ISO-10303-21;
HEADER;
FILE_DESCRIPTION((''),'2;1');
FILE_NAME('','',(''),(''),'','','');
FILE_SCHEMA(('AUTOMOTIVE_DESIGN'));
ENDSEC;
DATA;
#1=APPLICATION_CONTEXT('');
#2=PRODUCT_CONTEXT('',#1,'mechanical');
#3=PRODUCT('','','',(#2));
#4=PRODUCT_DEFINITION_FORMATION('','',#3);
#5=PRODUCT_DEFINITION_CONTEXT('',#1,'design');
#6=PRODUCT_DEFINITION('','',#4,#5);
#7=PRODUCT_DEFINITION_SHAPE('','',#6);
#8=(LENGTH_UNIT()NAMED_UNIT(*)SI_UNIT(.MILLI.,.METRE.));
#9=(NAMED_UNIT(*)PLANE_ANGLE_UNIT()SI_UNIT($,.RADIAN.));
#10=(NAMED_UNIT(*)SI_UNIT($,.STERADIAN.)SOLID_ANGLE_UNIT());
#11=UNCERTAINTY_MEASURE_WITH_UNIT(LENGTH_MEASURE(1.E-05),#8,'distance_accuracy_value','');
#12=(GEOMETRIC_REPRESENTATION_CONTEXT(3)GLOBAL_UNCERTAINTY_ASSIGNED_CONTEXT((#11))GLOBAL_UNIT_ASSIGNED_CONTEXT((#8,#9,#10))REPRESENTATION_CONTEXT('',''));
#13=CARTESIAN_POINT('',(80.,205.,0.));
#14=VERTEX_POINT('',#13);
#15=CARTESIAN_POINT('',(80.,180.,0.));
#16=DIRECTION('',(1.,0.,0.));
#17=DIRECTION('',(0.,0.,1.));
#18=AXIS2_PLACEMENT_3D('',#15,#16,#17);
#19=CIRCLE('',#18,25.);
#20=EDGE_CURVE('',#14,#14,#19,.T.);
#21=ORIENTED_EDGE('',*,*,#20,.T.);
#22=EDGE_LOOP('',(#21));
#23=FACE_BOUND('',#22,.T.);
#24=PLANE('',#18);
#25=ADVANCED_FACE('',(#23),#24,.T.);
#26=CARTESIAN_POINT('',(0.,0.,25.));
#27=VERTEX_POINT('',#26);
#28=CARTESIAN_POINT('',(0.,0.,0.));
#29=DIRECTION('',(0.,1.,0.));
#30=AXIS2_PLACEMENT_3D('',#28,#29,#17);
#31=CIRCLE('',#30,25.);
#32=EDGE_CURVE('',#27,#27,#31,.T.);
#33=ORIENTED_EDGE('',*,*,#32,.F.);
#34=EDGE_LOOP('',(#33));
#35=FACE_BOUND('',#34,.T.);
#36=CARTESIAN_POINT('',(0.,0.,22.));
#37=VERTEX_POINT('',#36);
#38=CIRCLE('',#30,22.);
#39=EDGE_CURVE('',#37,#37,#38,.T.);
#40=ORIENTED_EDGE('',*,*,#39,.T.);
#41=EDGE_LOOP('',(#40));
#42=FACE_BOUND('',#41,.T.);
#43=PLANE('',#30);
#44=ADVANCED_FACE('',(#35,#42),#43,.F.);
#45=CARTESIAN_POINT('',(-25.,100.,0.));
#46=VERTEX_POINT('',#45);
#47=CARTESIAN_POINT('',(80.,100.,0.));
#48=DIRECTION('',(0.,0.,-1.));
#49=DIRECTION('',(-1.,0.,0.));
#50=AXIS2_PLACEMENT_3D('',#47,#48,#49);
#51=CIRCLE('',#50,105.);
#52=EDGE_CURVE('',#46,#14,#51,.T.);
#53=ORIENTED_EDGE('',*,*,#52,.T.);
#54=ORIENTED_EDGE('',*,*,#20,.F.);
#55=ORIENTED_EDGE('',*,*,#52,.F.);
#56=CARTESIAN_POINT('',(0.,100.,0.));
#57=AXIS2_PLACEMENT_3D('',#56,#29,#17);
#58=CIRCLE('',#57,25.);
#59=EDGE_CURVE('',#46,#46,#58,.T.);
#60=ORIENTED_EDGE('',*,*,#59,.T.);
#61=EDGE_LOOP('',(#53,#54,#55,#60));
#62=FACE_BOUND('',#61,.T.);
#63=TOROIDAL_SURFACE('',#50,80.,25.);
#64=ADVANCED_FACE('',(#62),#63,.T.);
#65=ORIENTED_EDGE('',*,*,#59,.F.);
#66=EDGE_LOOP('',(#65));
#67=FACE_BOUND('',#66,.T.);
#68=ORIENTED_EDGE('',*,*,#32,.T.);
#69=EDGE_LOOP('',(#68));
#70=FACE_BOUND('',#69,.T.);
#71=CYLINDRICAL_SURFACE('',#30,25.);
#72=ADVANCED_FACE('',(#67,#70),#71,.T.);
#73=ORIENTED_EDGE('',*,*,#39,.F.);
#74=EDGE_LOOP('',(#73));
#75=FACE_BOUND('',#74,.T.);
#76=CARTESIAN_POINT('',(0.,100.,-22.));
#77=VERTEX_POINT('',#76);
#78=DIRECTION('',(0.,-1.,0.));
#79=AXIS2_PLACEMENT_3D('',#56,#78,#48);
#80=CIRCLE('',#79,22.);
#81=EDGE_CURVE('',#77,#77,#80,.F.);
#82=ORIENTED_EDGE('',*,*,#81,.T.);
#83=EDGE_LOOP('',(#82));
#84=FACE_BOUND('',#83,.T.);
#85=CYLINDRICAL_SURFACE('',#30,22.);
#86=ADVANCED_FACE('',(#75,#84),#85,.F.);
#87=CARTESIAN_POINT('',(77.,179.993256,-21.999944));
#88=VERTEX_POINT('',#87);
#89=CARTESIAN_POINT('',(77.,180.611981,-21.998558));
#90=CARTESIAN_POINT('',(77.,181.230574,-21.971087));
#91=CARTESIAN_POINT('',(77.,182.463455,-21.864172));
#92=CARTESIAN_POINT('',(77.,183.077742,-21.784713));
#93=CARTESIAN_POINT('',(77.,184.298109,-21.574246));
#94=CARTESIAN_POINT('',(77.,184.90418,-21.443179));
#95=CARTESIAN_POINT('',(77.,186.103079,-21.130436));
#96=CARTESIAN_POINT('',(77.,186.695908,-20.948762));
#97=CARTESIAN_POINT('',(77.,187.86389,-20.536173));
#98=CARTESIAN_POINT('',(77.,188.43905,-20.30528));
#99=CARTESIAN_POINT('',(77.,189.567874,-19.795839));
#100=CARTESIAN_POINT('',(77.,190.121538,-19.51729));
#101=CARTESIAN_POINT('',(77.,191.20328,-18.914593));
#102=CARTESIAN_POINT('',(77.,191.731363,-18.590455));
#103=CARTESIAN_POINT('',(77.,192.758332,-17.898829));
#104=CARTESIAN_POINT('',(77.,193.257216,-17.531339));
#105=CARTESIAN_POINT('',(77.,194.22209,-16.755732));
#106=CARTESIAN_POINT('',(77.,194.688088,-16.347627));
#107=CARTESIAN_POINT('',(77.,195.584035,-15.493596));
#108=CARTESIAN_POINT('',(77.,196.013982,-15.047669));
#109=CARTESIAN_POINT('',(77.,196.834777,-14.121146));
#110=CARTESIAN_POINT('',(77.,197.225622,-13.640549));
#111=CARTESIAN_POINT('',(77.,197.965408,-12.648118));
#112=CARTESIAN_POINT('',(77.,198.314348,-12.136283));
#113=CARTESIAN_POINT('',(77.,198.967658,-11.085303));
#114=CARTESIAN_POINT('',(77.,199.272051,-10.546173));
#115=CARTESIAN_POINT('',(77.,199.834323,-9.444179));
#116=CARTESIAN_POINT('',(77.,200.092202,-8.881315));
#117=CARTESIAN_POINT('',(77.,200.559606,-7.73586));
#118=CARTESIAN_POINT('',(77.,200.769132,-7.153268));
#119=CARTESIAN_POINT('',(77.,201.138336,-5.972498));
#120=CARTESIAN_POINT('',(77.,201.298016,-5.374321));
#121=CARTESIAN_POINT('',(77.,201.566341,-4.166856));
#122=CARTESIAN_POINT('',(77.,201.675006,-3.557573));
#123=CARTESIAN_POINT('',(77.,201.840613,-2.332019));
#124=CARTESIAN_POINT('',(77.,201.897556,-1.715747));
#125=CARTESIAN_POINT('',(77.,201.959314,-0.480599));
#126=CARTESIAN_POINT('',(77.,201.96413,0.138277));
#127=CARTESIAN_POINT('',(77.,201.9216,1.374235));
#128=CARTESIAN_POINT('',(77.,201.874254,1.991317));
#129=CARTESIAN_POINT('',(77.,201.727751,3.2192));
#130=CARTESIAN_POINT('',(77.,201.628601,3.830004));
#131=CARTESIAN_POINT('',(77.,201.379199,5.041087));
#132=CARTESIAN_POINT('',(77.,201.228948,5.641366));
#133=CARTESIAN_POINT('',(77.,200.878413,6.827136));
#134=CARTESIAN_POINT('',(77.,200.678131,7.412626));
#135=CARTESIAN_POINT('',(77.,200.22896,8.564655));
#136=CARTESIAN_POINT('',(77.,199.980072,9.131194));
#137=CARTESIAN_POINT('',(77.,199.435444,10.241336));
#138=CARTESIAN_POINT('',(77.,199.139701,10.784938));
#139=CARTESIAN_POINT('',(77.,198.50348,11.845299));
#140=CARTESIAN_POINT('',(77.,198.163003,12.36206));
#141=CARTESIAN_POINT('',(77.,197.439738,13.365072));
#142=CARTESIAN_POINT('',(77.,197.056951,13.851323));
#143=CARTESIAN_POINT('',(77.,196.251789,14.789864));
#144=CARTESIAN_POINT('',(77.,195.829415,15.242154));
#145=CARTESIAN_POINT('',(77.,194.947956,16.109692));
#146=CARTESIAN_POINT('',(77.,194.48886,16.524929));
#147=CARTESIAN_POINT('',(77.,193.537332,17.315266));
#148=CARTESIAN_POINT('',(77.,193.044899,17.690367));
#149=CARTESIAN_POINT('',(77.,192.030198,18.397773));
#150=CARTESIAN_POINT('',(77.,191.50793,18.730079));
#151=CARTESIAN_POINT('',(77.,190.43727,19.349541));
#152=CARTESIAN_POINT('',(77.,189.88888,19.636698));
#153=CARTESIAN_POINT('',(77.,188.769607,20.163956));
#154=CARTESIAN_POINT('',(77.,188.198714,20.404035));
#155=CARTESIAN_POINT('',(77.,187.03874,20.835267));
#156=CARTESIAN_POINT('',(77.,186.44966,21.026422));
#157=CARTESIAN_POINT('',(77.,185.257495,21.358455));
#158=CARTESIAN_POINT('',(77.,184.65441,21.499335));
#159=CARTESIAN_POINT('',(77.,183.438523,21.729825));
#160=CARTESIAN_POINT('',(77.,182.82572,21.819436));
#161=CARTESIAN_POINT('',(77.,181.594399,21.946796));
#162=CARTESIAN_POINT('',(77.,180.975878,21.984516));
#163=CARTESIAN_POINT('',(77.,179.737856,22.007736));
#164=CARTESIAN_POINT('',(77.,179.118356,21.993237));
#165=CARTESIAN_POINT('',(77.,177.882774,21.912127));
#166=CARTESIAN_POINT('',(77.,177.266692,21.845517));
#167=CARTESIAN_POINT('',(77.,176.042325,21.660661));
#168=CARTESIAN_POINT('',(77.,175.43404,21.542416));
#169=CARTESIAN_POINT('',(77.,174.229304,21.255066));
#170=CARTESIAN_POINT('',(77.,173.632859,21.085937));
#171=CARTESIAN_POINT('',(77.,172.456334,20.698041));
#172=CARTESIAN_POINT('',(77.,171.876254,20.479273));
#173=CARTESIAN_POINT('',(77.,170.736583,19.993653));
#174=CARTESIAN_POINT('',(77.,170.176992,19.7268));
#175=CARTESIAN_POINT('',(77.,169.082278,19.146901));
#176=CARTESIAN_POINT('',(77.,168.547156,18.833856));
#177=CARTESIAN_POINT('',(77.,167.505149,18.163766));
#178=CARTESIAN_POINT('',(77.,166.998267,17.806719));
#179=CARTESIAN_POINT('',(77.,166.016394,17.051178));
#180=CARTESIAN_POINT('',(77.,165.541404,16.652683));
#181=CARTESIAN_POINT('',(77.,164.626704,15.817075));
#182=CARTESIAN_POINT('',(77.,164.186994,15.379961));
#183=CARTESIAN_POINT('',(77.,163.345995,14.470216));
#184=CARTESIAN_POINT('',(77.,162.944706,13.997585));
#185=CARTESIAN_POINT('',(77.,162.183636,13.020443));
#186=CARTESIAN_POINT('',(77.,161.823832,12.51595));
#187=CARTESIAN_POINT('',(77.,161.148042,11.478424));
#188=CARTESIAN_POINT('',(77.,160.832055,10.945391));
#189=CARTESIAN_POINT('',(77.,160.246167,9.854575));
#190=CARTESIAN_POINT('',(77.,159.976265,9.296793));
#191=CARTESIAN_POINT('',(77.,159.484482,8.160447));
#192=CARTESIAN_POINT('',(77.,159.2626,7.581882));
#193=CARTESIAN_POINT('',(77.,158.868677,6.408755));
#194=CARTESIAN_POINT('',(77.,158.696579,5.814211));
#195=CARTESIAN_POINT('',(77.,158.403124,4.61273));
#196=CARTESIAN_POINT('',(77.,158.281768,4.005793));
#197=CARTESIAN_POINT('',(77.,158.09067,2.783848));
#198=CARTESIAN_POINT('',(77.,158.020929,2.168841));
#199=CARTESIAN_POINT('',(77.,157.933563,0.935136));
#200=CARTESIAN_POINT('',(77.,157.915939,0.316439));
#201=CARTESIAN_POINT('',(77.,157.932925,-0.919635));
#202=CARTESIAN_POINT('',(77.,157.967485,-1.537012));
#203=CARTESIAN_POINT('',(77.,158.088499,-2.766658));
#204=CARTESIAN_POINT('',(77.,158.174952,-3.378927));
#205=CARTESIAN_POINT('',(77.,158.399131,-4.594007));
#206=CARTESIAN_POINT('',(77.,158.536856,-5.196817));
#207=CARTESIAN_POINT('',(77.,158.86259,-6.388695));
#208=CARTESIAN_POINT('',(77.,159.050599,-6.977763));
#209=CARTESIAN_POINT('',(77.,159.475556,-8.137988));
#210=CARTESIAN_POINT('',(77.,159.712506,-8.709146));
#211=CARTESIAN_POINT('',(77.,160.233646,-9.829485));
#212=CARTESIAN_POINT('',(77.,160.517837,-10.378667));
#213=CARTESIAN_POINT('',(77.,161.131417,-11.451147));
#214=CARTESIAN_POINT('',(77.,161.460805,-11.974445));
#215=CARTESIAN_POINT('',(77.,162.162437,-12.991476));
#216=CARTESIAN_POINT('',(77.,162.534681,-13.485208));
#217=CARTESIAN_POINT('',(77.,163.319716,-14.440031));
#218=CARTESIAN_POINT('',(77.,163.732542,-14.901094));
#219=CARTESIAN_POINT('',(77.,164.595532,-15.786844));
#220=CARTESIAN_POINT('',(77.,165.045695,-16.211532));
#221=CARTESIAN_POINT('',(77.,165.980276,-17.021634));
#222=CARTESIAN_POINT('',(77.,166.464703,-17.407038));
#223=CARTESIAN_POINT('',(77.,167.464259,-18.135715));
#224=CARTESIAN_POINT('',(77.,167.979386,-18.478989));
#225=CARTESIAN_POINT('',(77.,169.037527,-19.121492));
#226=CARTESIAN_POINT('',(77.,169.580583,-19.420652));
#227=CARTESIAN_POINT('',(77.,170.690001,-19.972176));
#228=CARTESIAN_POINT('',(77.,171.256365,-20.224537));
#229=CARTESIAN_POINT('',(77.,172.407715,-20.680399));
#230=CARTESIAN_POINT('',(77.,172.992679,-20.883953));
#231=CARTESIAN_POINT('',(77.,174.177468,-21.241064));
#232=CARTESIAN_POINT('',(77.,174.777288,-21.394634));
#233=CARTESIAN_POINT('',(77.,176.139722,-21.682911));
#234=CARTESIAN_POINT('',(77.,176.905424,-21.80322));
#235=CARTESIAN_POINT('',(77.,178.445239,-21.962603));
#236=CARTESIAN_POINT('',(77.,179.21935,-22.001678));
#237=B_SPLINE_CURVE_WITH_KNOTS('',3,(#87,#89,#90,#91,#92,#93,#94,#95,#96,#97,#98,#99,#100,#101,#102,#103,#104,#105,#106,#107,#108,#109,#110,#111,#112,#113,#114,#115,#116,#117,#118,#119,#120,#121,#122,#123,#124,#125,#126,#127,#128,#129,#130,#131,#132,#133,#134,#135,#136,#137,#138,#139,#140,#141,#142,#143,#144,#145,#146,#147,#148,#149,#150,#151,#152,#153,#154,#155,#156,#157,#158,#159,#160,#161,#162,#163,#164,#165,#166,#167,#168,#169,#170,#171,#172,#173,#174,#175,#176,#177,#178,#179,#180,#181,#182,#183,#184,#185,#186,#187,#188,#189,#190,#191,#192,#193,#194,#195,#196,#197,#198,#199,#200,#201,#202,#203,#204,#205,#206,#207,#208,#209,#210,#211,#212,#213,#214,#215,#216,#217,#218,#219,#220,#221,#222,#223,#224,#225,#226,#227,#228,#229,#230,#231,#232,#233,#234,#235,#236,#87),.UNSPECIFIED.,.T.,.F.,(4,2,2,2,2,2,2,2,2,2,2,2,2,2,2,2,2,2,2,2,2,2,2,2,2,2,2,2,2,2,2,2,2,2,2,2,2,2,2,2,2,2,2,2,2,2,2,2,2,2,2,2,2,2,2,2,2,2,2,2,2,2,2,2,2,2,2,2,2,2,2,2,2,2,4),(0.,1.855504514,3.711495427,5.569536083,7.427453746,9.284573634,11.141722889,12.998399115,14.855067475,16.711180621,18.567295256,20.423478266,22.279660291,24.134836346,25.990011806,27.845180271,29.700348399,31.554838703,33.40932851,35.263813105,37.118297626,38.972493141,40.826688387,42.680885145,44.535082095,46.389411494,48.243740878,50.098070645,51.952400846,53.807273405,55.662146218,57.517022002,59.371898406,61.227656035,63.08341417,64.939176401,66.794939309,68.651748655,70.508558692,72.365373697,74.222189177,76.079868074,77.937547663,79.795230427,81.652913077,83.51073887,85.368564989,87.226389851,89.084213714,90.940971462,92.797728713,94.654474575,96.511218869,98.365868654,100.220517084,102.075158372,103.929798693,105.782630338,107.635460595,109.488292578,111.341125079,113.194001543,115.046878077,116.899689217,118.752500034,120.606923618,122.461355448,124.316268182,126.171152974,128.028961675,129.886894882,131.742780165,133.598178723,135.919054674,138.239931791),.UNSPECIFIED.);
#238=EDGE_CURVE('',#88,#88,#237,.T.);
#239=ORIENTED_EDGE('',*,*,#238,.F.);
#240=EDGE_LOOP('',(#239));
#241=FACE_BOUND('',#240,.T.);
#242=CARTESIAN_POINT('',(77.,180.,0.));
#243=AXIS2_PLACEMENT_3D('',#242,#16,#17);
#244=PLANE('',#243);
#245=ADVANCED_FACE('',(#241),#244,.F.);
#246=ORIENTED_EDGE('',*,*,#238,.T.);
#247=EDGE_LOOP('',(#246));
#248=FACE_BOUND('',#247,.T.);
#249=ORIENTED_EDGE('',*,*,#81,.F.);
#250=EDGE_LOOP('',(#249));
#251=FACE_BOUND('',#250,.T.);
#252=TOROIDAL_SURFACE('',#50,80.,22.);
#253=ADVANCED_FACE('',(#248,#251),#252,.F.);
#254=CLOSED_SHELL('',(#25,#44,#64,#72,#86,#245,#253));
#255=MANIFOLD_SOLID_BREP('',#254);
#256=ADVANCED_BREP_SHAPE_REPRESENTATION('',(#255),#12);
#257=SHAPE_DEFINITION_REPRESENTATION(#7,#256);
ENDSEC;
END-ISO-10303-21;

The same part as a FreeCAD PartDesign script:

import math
import FreeCAD as App
import Part
import Sketcher
from FreeCAD import Vector
Q = App.Units.Quantity


def faces_at(feature, points):
    """Names of the faces that lie closest to the given points."""
    faces = feature.Shape.Faces
    near = lambda p: min(range(len(faces)), key=lambda i: faces[i].distToShape(Part.Vertex(*p))[0])
    return sorted({f"Face{near(p) + 1}" for p in points})

doc = App.newDocument("Part")
body = doc.addObject("PartDesign::Body", "Body")

sketch1 = doc.addObject("Sketcher::SketchObject", "Sketch")
body.addObject(sketch1)
sketch1.AttachmentSupport = (doc.XZ_Plane, [""])
sketch1.MapMode = "FlatFace"
sketch1.addGeometry(Part.Circle(Vector(0, 0, 0), Vector(0, 0, 1), 25), False)
sketch1.addConstraint(Sketcher.Constraint("Coincident", 0, 3, -1, 1))
sketch1.addConstraint(Sketcher.Constraint("Diameter", 0, Q("50 mm")))

sketch2 = doc.addObject("Sketcher::SketchObject", "Sketch001")
body.addObject(sketch2)
sketch2.AttachmentSupport = (doc.XY_Plane, [""])
sketch2.MapMode = "FlatFace"
sketch2.addGeometry(Part.LineSegment(Vector(0, 0, 0), Vector(0, 100, 0)), False)
sketch2.addGeometry(Part.ArcOfCircle(Part.Circle(Vector(80, 100, 0), Vector(0, 0, 1), 80), math.radians(90), math.radians(180)), False)
sketch2.addConstraint(Sketcher.Constraint("Tangent", 0, 2, 1, 2))
sketch2.addConstraint(Sketcher.Constraint("Vertical", 0))
sketch2.addConstraint(Sketcher.Constraint("Coincident", 0, 1, -1, 1))
sketch2.addConstraint(Sketcher.Constraint("Radius", 1, Q("80 mm")))
sketch2.addConstraint(Sketcher.Constraint("DistanceY", 0, 1, 0, 2, Q("100 mm")))
sketch2.addConstraint(Sketcher.Constraint("DistanceX", -1, 1, 1, 1, Q("80 mm")))
doc.recompute()

additivepipe = doc.addObject("PartDesign::AdditivePipe", "AdditivePipe")
body.addObject(additivepipe)
additivepipe.Profile = sketch1
additivepipe.Spine = (sketch2, ["Edge1", "Edge2"])
doc.recompute()

thickness = doc.addObject("PartDesign::Thickness", "Thickness")
body.addObject(thickness)
thickness.Base = (additivepipe, faces_at(additivepipe, [(0, 0, 0)]))
thickness.Value = 3
thickness.Reversed = True
thickness.Join = "Intersection"

doc.recompute()
